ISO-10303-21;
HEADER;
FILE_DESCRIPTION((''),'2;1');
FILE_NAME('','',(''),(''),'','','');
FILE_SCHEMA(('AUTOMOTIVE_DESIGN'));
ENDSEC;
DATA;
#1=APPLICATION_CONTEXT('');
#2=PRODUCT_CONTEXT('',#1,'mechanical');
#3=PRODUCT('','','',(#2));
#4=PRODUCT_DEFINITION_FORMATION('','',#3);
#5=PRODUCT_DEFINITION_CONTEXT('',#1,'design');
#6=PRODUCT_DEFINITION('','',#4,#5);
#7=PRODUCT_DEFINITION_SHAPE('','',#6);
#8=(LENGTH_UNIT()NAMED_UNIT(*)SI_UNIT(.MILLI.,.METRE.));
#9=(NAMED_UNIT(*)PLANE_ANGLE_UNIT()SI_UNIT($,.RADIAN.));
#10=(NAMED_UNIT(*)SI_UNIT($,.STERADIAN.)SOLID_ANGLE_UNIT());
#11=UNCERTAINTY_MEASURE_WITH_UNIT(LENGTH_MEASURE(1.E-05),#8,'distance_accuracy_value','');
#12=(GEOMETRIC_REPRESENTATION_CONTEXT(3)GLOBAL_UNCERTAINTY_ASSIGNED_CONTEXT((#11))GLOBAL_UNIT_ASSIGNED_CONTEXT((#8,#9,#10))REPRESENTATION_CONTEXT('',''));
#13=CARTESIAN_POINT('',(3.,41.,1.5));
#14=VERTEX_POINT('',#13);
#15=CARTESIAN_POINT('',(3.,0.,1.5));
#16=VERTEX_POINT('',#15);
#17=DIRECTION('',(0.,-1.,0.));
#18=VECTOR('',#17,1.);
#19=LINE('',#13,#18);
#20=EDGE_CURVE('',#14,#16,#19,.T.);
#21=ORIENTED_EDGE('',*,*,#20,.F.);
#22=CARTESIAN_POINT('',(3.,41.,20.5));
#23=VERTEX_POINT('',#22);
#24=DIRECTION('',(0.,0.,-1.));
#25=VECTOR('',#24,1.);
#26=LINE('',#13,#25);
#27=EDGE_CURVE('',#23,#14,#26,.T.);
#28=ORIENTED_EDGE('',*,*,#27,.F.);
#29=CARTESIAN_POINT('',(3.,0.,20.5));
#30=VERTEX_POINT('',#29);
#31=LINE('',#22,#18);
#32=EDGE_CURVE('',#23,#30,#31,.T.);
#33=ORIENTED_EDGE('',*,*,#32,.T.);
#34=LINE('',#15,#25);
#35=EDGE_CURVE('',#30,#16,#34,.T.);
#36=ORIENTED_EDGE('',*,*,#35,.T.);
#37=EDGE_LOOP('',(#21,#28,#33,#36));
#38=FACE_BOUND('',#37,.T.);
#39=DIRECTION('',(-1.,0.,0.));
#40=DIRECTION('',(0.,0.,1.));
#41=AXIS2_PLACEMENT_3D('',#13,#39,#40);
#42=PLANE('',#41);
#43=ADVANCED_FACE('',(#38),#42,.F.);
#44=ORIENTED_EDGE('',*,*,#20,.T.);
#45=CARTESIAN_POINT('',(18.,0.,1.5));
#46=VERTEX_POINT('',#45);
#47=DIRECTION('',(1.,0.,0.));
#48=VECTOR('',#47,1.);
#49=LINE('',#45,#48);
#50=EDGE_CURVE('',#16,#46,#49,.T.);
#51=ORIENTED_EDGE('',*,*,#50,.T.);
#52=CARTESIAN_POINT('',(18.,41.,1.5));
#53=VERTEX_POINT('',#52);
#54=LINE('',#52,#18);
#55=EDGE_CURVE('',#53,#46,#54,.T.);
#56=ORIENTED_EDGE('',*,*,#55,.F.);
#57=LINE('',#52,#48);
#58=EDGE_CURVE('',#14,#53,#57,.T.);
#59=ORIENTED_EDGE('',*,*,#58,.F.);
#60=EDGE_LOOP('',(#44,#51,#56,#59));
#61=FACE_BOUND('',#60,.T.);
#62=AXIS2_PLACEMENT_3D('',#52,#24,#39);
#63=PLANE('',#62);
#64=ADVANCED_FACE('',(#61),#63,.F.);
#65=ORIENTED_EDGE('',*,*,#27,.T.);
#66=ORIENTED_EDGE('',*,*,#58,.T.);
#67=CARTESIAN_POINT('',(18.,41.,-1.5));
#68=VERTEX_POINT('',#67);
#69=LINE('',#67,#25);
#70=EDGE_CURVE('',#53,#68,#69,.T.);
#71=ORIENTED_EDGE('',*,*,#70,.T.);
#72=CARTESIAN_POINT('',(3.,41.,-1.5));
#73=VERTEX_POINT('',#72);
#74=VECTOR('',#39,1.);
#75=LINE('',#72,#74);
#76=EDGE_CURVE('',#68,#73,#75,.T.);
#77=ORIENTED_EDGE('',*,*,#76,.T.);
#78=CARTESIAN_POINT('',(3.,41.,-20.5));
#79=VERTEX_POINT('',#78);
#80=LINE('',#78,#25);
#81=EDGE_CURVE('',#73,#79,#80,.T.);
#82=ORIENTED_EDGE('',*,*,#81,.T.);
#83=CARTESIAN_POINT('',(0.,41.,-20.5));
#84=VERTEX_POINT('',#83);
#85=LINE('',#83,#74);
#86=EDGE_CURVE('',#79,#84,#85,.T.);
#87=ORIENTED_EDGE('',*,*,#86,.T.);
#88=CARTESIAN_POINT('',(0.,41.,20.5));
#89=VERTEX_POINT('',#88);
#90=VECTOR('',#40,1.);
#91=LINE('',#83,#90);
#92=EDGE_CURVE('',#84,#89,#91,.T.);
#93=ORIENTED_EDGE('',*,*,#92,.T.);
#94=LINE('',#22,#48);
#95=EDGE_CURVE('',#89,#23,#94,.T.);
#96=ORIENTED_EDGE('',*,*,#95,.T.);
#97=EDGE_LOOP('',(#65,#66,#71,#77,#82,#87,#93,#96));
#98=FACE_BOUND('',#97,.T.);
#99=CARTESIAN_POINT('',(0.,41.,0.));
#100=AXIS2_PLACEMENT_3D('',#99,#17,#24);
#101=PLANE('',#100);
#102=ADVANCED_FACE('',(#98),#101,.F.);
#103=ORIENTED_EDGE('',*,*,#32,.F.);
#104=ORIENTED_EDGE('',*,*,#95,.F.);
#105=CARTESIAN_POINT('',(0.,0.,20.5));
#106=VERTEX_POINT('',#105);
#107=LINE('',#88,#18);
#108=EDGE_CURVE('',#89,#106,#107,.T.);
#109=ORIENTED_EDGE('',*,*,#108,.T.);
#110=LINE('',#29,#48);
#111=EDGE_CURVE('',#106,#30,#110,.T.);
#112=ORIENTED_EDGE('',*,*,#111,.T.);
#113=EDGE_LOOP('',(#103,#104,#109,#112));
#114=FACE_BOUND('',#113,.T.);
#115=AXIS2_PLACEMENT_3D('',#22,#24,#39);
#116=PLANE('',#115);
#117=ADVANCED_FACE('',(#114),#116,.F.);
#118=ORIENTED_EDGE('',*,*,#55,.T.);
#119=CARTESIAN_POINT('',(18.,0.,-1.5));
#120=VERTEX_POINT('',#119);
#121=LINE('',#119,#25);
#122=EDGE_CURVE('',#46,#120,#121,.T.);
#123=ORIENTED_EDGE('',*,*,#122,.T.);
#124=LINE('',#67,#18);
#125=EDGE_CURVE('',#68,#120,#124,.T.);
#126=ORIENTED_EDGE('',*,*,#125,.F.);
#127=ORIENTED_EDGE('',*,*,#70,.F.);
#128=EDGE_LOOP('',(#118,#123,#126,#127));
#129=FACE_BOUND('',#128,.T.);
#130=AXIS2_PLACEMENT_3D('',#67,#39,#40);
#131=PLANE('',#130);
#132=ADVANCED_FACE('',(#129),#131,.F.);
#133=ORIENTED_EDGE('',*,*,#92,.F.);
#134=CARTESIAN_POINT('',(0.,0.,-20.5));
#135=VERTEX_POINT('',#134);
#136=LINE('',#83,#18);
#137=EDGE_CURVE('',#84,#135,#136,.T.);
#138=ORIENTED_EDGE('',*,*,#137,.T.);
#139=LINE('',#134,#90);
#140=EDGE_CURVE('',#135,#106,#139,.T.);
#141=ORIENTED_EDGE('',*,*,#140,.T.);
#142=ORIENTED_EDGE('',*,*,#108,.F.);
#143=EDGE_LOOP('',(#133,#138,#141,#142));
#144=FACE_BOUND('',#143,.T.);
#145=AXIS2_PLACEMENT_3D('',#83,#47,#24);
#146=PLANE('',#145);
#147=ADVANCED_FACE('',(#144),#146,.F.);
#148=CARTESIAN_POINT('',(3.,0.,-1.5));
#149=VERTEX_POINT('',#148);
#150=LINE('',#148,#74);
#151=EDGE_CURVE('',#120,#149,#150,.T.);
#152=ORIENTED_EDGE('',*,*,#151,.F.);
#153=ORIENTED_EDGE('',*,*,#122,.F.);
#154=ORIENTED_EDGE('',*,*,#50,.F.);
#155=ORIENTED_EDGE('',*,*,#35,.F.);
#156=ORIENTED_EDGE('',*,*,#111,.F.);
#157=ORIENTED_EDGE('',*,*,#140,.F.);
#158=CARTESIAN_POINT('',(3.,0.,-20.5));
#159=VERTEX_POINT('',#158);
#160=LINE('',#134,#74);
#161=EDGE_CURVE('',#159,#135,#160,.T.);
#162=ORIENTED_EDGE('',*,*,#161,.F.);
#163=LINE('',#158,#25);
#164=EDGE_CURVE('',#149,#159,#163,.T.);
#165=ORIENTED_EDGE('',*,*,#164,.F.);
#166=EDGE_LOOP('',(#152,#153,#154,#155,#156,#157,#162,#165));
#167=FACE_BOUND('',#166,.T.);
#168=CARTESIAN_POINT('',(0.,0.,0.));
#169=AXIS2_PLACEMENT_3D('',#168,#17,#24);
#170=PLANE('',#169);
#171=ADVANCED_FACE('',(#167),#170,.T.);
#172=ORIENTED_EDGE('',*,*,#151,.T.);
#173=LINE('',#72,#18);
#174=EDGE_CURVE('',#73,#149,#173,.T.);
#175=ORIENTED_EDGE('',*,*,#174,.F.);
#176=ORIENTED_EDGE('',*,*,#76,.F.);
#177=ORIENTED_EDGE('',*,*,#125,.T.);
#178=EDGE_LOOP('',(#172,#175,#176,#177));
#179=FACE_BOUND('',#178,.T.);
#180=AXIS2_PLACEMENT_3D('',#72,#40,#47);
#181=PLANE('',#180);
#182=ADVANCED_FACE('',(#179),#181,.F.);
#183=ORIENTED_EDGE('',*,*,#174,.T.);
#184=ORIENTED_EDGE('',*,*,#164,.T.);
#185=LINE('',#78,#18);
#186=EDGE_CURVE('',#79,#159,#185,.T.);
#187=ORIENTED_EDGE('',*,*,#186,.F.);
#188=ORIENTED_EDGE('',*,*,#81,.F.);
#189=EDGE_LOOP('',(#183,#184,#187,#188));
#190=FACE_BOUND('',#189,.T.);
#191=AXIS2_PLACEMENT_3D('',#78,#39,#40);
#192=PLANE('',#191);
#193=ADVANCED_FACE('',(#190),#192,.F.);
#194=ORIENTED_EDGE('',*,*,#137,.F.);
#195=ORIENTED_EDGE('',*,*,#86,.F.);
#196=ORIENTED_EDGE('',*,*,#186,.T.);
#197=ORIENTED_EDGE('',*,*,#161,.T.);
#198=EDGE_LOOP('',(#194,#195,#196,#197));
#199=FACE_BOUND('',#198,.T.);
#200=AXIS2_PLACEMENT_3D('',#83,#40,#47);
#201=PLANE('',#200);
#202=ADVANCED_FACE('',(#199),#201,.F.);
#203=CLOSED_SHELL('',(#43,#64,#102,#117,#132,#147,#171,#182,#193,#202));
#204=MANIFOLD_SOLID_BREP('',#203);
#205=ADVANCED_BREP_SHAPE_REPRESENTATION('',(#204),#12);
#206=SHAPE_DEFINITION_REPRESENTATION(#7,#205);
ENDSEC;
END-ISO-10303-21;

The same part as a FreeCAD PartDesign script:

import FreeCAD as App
import Part
import Sketcher

V = App.Vector


def add_polygon(sketch, points):
    """Adds a closed chain of lines whose ends are joined by coincident constraints."""
    first, n = sketch.GeometryCount, len(points)
    for a, b in zip(points, points[1:] + points[:1]):
        sketch.addGeometry(Part.LineSegment(App.Vector(*a, 0), App.Vector(*b, 0)), False)
    for i in range(n):
        sketch.addConstraint(Sketcher.Constraint("Coincident", first + i, 2, first + (i + 1) % n, 1))

doc = App.newDocument("Part")
body = doc.addObject("PartDesign::Body", "Body")

sketch1 = body.newObject("Sketcher::SketchObject", "Sketch")
sketch1.AttachmentSupport = (doc.getObject("XZ_Plane"), [""])
sketch1.MapMode = "FlatFace"
add_polygon(sketch1, [(3, -20.5), (0, -20.5), (0, 20.5), (3, 20.5), (3, 1.5), (18, 1.5), (18, -1.5), (3, -1.5)])
sketch1.addConstraint([
    Sketcher.Constraint("Horizontal", 0),
    Sketcher.Constraint("Vertical", 1),
    Sketcher.Constraint("Horizontal", 2),
    Sketcher.Constraint("Vertical", 3),
    Sketcher.Constraint("Horizontal", 4),
    Sketcher.Constraint("Vertical", 5),
    Sketcher.Constraint("Horizontal", 6),
    Sketcher.Constraint("Vertical", 7),
    Sketcher.Constraint("Symmetric", 0, 2, 1, 2, -1, 1),
    Sketcher.Constraint("Symmetric", 3, 2, 6, 2, -1),
    Sketcher.Constraint("Equal", 2, 5),
    Sketcher.Constraint("DistanceX", 0, 2, 0, 1, 3.0),
    Sketcher.Constraint("DistanceX", 4, 1, 4, 2, 15.0),
    Sketcher.Constraint("DistanceY", 1, 1, 1, 2, 41.0),
])
pad1 = body.newObject("PartDesign::Pad", "Pad")
pad1.Profile = sketch1
pad1.Length = 41
pad1.Reversed = True

doc.recompute()
